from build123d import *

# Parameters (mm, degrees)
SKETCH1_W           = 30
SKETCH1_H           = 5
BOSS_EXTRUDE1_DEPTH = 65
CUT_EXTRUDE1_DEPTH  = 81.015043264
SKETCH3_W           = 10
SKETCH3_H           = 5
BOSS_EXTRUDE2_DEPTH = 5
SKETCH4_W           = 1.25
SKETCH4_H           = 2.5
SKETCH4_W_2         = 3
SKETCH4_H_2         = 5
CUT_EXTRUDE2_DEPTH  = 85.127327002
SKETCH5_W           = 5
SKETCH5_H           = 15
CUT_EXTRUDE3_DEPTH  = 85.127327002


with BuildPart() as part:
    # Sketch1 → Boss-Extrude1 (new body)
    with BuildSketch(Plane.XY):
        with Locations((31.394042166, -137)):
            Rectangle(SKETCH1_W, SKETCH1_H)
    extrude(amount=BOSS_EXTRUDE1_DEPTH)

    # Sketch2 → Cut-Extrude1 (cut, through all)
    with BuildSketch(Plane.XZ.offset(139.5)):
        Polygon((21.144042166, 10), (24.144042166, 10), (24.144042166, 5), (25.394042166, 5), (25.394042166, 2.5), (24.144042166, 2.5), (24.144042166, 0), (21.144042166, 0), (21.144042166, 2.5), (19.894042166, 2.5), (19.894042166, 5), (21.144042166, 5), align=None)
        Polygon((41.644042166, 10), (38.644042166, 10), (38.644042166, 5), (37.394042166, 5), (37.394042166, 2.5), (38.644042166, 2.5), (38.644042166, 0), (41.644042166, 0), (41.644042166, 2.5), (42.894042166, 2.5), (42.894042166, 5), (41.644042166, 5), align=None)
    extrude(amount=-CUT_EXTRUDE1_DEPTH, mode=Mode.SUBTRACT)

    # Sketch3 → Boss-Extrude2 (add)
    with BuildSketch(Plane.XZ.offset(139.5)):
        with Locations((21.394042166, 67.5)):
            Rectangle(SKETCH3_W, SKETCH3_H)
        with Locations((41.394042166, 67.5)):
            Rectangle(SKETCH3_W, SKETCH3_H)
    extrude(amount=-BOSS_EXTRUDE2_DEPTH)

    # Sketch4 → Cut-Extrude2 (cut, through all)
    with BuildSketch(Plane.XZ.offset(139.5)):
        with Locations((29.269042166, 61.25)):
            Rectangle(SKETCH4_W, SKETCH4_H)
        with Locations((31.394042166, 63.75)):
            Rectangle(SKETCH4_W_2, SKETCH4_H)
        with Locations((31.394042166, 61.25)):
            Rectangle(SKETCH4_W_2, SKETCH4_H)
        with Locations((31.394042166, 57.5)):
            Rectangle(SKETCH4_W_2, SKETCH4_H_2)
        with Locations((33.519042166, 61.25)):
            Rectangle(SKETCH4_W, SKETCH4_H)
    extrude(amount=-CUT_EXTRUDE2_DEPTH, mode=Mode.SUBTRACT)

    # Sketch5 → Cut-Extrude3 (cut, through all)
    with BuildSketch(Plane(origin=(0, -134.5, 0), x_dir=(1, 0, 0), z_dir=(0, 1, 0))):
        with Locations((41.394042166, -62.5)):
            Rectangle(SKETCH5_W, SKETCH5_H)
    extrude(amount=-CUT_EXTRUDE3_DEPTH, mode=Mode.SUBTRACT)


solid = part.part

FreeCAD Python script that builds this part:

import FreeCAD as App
import Part
import Sketcher
Q = App.Units.Quantity

doc = App.newDocument("Part")
body = doc.addObject("PartDesign::Body", "Body")

# Sketch on XY plane
sketch1 = body.newObject("Sketcher::SketchObject", "Sketch")
sketch1.AttachmentSupport = (doc.getObject("XY_Plane"), [""])
sketch1.MapMode = "FlatFace"
sketch1.addGeometry([
    Part.LineSegment(App.Vector(16, -134, 0), App.Vector(16, -140, 0)),
    Part.LineSegment(App.Vector(16, -140, 0), App.Vector(46, -140, 0)),
    Part.LineSegment(App.Vector(46, -140, 0), App.Vector(46, -134, 0)),
    Part.LineSegment(App.Vector(46, -134, 0), App.Vector(16, -134, 0)),
], False)
sketch1.addConstraint([
    Sketcher.Constraint("Coincident", 0, 2, 1, 1),
    Sketcher.Constraint("Coincident", 1, 2, 2, 1),
    Sketcher.Constraint("Coincident", 2, 2, 3, 1),
    Sketcher.Constraint("Coincident", 3, 2, 0, 1),
    Sketcher.Constraint("Vertical", 0),
    Sketcher.Constraint("Horizontal", 1),
    Sketcher.Constraint("Vertical", 2),
    Sketcher.Constraint("Horizontal", 3),
    Sketcher.Constraint("DistanceX", 1, 1, 1, 2, Q("30 mm")),
    Sketcher.Constraint("DistanceY", 0, 2, 0, 1, Q("5 mm")),
    Sketcher.Constraint("DistanceY", 0, 2, -1, 1, Q("139.5 mm")),
    Sketcher.Constraint("DistanceX", -1, 1, 0, 2, Q("16.394042 mm")),
])
pad1 = body.newObject("PartDesign::Pad", "Pad")
pad1.Profile = sketch1
pad1.Length = 65

# Sketch on XZ plane
sketch2 = body.newObject("Sketcher::SketchObject", "Sketch001")
sketch2.AttachmentSupport = (doc.getObject("XZ_Plane"), [""])
sketch2.MapMode = "FlatFace"
sketch2.AttachmentOffset = App.Placement(App.Vector(0, 0, 139.5), App.Rotation())
sketch2.addGeometry([
    Part.LineSegment(App.Vector(24.1, 10, 0), App.Vector(21.1, 10, 0)),  # 0
    Part.LineSegment(App.Vector(21.1, 10, 0), App.Vector(21.1, 5, 0)),  # 1
    Part.LineSegment(App.Vector(21.1, 5, 0), App.Vector(19.9, 5, 0)),  # 2
    Part.LineSegment(App.Vector(19.9, 5, 0), App.Vector(19.9, 2.5, 0)),  # 3
    Part.LineSegment(App.Vector(19.9, 2.5, 0), App.Vector(21.1, 2.5, 0)),  # 4
    Part.LineSegment(App.Vector(21.1, 2.5, 0), App.Vector(21.1, 0, 0)),  # 5
    Part.LineSegment(App.Vector(21.1, 0, 0), App.Vector(24.1, 0, 0)),  # 6
    Part.LineSegment(App.Vector(24.1, 0, 0), App.Vector(24.1, 2.5, 0)),  # 7
    Part.LineSegment(App.Vector(24.1, 2.5, 0), App.Vector(25.4, 2.5, 0)),  # 8
    Part.LineSegment(App.Vector(25.4, 2.5, 0), App.Vector(25.4, 5, 0)),  # 9
    Part.LineSegment(App.Vector(25.4, 5, 0), App.Vector(24.1, 5, 0)),  # 10
    Part.LineSegment(App.Vector(24.1, 5, 0), App.Vector(24.1, 10, 0)),  # 11
    Part.LineSegment(App.Vector(41.6, 10, 0), App.Vector(38.6, 10, 0)),  # 12
    Part.LineSegment(App.Vector(38.6, 10, 0), App.Vector(38.6, 5, 0)),  # 13
    Part.LineSegment(App.Vector(38.6, 5, 0), App.Vector(37.4, 5, 0)),  # 14
    Part.LineSegment(App.Vector(37.4, 5, 0), App.Vector(37.4, 2.5, 0)),  # 15
    Part.LineSegment(App.Vector(37.4, 2.5, 0), App.Vector(38.6, 2.5, 0)),  # 16
    Part.LineSegment(App.Vector(38.6, 2.5, 0), App.Vector(38.6, 0, 0)),  # 17
    Part.LineSegment(App.Vector(38.6, 0, 0), App.Vector(41.6, 0, 0)),  # 18
    Part.LineSegment(App.Vector(41.6, 0, 0), App.Vector(41.6, 2.5, 0)),  # 19
    Part.LineSegment(App.Vector(41.6, 2.5, 0), App.Vector(42.9, 2.5, 0)),  # 20
    Part.LineSegment(App.Vector(42.9, 2.5, 0), App.Vector(42.9, 5, 0)),  # 21
    Part.LineSegment(App.Vector(42.9, 5, 0), App.Vector(41.6, 5, 0)),  # 22
    Part.LineSegment(App.Vector(41.6, 5, 0), App.Vector(41.6, 10, 0)),  # 23
], False)
sketch2.addConstraint([
    Sketcher.Constraint("Coincident", 0, 2, 1, 1),
    Sketcher.Constraint("Coincident", 1, 2, 2, 1),
    Sketcher.Constraint("Coincident", 2, 2, 3, 1),
    Sketcher.Constraint("Coincident", 3, 2, 4, 1),
    Sketcher.Constraint("Coincident", 4, 2, 5, 1),
    Sketcher.Constraint("Coincident", 5, 2, 6, 1),
    Sketcher.Constraint("Coincident", 6, 2, 7, 1),
    Sketcher.Constraint("Coincident", 7, 2, 8, 1),
    Sketcher.Constraint("Coincident", 8, 2, 9, 1),
    Sketcher.Constraint("Coincident", 9, 2, 10, 1),
    Sketcher.Constraint("Coincident", 10, 2, 11, 1),
    Sketcher.Constraint("Coincident", 11, 2, 0, 1),
    Sketcher.Constraint("Coincident", 12, 2, 13, 1),
    Sketcher.Constraint("Coincident", 13, 2, 14, 1),
    Sketcher.Constraint("Coincident", 14, 2, 15, 1),
    Sketcher.Constraint("Coincident", 15, 2, 16, 1),
    Sketcher.Constraint("Coincident", 16, 2, 17, 1),
    Sketcher.Constraint("Coincident", 17, 2, 18, 1),
    Sketcher.Constraint("Coincident", 18, 2, 19, 1),
    Sketcher.Constraint("Coincident", 19, 2, 20, 1),
    Sketcher.Constraint("Coincident", 20, 2, 21, 1),
    Sketcher.Constraint("Coincident", 21, 2, 22, 1),
    Sketcher.Constraint("Coincident", 22, 2, 23, 1),
    Sketcher.Constraint("Coincident", 23, 2, 12, 1),
    Sketcher.Constraint("Horizontal", 0),
    Sketcher.Constraint("Vertical", 1),
    Sketcher.Constraint("Horizontal", 2),
    Sketcher.Constraint("Vertical", 3),
    Sketcher.Constraint("Horizontal", 4),
    Sketcher.Constraint("Vertical", 5),
    Sketcher.Constraint("Horizontal", 6),
    Sketcher.Constraint("Vertical", 7),
    Sketcher.Constraint("Horizontal", 8),
    Sketcher.Constraint("Vertical", 9),
    Sketcher.Constraint("Horizontal", 10),
    Sketcher.Constraint("Vertical", 11),
    Sketcher.Constraint("Horizontal", 12),
    Sketcher.Constraint("Vertical", 13),
    Sketcher.Constraint("Horizontal", 14),
    Sketcher.Constraint("Vertical", 15),
    Sketcher.Constraint("Horizontal", 16),
    Sketcher.Constraint("Vertical", 17),
    Sketcher.Constraint("Horizontal", 18),
    Sketcher.Constraint("Vertical", 19),
    Sketcher.Constraint("Horizontal", 20),
    Sketcher.Constraint("Vertical", 21),
    Sketcher.Constraint("Horizontal", 22),
    Sketcher.Constraint("Vertical", 23),
    Sketcher.Constraint("PointOnObject", 5, 2, -1),
    Sketcher.Constraint("PointOnObject", 17, 2, -1),
    Sketcher.Constraint("Horizontal", 4, 2, 7, 2),
    Sketcher.Constraint("Horizontal", 2, 2, 9, 2),
    Sketcher.Constraint("Horizontal", 11, 2, 12, 2),
    Sketcher.Constraint("Horizontal", 10, 2, 13, 2),
    Sketcher.Constraint("Horizontal", 8, 2, 15, 2),
    Sketcher.Constraint("Horizontal", 16, 2, 19, 2),
    Sketcher.Constraint("Horizontal", 14, 2, 21, 2),
    Sketcher.Constraint("Vertical", 1, 2, 4, 2),
    Sketcher.Constraint("Vertical", 7, 2, 10, 2),
    Sketcher.Constraint("Vertical", 13, 2, 16, 2),
    Sketcher.Constraint("Vertical", 19, 2, 22, 2),
    Sketcher.Constraint("Equal", 4, 8),
    Sketcher.Constraint("Equal", 6, 12),
    Sketcher.Constraint("Equal", 10, 14),
    Sketcher.Constraint("Equal", 16, 20),
    Sketcher.Constraint("Equal", 3, 5),
    Sketcher.Constraint("DistanceX", 0, 2, 0, 1, Q("3 mm")),
    Sketcher.Constraint("DistanceY", 1, 2, 1, 1, Q("5 mm")),
    Sketcher.Constraint("DistanceY", 3, 2, 3, 1, Q("2.5 mm")),
    Sketcher.Constraint("DistanceX", 9, 2, 14, 2, Q("12 mm")),
    Sketcher.Constraint("DistanceX", 2, 2, 2, 1, Q("1.25 mm")),
    Sketcher.Constraint("DistanceX", -1, 1, 0, 2, Q("21.144042 mm")),
])
pocket1 = body.newObject("PartDesign::Pocket", "Pocket")
pocket1.Profile = sketch2
pocket1.Type = "ThroughAll"

# Sketch on XZ plane
sketch3 = body.newObject("Sketcher::SketchObject", "Sketch002")
sketch3.AttachmentSupport = (doc.getObject("XZ_Plane"), [""])
sketch3.MapMode = "FlatFace"
sketch3.AttachmentOffset = App.Placement(App.Vector(0, 0, 139.5), App.Rotation())
sketch3.addGeometry([
    Part.LineSegment(App.Vector(16, 70, 0), App.Vector(16, 65, 0)),  # 0
    Part.LineSegment(App.Vector(16, 65, 0), App.Vector(26, 65, 0)),  # 1
    Part.LineSegment(App.Vector(26, 65, 0), App.Vector(26, 70, 0)),  # 2
    Part.LineSegment(App.Vector(26, 70, 0), App.Vector(16, 70, 0)),  # 3
    Part.LineSegment(App.Vector(36, 70, 0), App.Vector(36, 65, 0)),  # 4
    Part.LineSegment(App.Vector(36, 65, 0), App.Vector(46, 65, 0)),  # 5
    Part.LineSegment(App.Vector(46, 65, 0), App.Vector(46, 70, 0)),  # 6
    Part.LineSegment(App.Vector(46, 70, 0), App.Vector(36, 70, 0)),  # 7
], False)
sketch3.addConstraint([
    Sketcher.Constraint("Coincident", 0, 2, 1, 1),
    Sketcher.Constraint("Coincident", 1, 2, 2, 1),
    Sketcher.Constraint("Coincident", 2, 2, 3, 1),
    Sketcher.Constraint("Coincident", 3, 2, 0, 1),
    Sketcher.Constraint("Coincident", 4, 2, 5, 1),
    Sketcher.Constraint("Coincident", 5, 2, 6, 1),
    Sketcher.Constraint("Coincident", 6, 2, 7, 1),
    Sketcher.Constraint("Coincident", 7, 2, 4, 1),
    Sketcher.Constraint("Vertical", 0),
    Sketcher.Constraint("Horizontal", 1),
    Sketcher.Constraint("Vertical", 2),
    Sketcher.Constraint("Horizontal", 3),
    Sketcher.Constraint("Vertical", 4),
    Sketcher.Constraint("Horizontal", 5),
    Sketcher.Constraint("Vertical", 6),
    Sketcher.Constraint("Horizontal", 7),
    Sketcher.Constraint("Horizontal", 1, 2, 4, 2),
    Sketcher.Constraint("Horizontal", 3, 2, 6, 2),
    Sketcher.Constraint("Equal", 3, 5),
    Sketcher.Constraint("DistanceX", 1, 1, 1, 2, Q("10 mm")),
    Sketcher.Constraint("DistanceY", 0, 2, 0, 1, Q("5 mm")),
    Sketcher.Constraint("DistanceY", -1, 1, 0, 2, Q("65 mm")),
    Sketcher.Constraint("DistanceX", 1, 2, 4, 2, Q("10 mm")),
    Sketcher.Constraint("DistanceX", -1, 1, 0, 2, Q("16.394042 mm")),
])
pad2 = body.newObject("PartDesign::Pad", "Pad001")
pad2.Profile = sketch3
pad2.Length = 5
pad2.Reversed = True

# Sketch on XZ plane
sketch4 = body.newObject("Sketcher::SketchObject", "Sketch003")
sketch4.AttachmentSupport = (doc.getObject("XZ_Plane"), [""])
sketch4.MapMode = "FlatFace"
sketch4.AttachmentOffset = App.Placement(App.Vector(0, 0, 139.5), App.Rotation())
sketch4.addGeometry([
    Part.LineSegment(App.Vector(28.6, 62.5, 0), App.Vector(28.6, 60, 0)),  # 0
    Part.LineSegment(App.Vector(28.6, 60, 0), App.Vector(29.9, 60, 0)),  # 1
    Part.LineSegment(App.Vector(29.9, 60, 0), App.Vector(29.9, 55, 0)),  # 2
    Part.LineSegment(App.Vector(29.9, 55, 0), App.Vector(32.9, 55, 0)),  # 3
    Part.LineSegment(App.Vector(32.9, 55, 0), App.Vector(32.9, 60, 0)),  # 4
    Part.LineSegment(App.Vector(32.9, 60, 0), App.Vector(34.1, 60, 0)),  # 5
    Part.LineSegment(App.Vector(34.1, 60, 0), App.Vector(34.1, 62.5, 0)),  # 6
    Part.LineSegment(App.Vector(34.1, 62.5, 0), App.Vector(32.9, 62.5, 0)),  # 7
    Part.LineSegment(App.Vector(32.9, 62.5, 0), App.Vector(32.9, 65, 0)),  # 8
    Part.LineSegment(App.Vector(32.9, 65, 0), App.Vector(29.9, 65, 0)),  # 9
    Part.LineSegment(App.Vector(29.9, 65, 0), App.Vector(29.9, 62.5, 0)),  # 10
    Part.LineSegment(App.Vector(29.9, 62.5, 0), App.Vector(28.6, 62.5, 0)),  # 11
], False)
sketch4.addConstraint([
    Sketcher.Constraint("Coincident", 0, 2, 1, 1),
    Sketcher.Constraint("Coincident", 1, 2, 2, 1),
    Sketcher.Constraint("Coincident", 2, 2, 3, 1),
    Sketcher.Constraint("Coincident", 3, 2, 4, 1),
    Sketcher.Constraint("Coincident", 4, 2, 5, 1),
    Sketcher.Constraint("Coincident", 5, 2, 6, 1),
    Sketcher.Constraint("Coincident", 6, 2, 7, 1),
    Sketcher.Constraint("Coincident", 7, 2, 8, 1),
    Sketcher.Constraint("Coincident", 8, 2, 9, 1),
    Sketcher.Constraint("Coincident", 9, 2, 10, 1),
    Sketcher.Constraint("Coincident", 10, 2, 11, 1),
    Sketcher.Constraint("Coincident", 11, 2, 0, 1),
    Sketcher.Constraint("Vertical", 0),
    Sketcher.Constraint("Horizontal", 1),
    Sketcher.Constraint("Vertical", 2),
    Sketcher.Constraint("Horizontal", 3),
    Sketcher.Constraint("Vertical", 4),
    Sketcher.Constraint("Horizontal", 5),
    Sketcher.Constraint("Vertical", 6),
    Sketcher.Constraint("Horizontal", 7),
    Sketcher.Constraint("Vertical", 8),
    Sketcher.Constraint("Horizontal", 9),
    Sketcher.Constraint("Vertical", 10),
    Sketcher.Constraint("Horizontal", 11),
    Sketcher.Constraint("Horizontal", 1, 2, 4, 2),
    Sketcher.Constraint("Horizontal", 7, 2, 10, 2),
    Sketcher.Constraint("Vertical", 4, 2, 7, 2),
    Sketcher.Constraint("Vertical", 2, 2, 9, 2),
    Sketcher.Constraint("Equal", 1, 5),
    Sketcher.Constraint("Equal", 6, 8),
    Sketcher.Constraint("DistanceX", 3, 1, 3, 2, Q("3 mm")),
    Sketcher.Constraint("DistanceY", 2, 2, 2, 1, Q("5 mm")),
    Sketcher.Constraint("DistanceY", 0, 2, 0, 1, Q("2.5 mm")),
    Sketcher.Constraint("DistanceY", -1, 1, 0, 2, Q("60 mm")),
    Sketcher.Constraint("DistanceX", 1, 1, 1, 2, Q("1.25 mm")),
    Sketcher.Constraint("DistanceX", -1, 1, 0, 2, Q("28.644042 mm")),
])
pocket2 = body.newObject("PartDesign::Pocket", "Pocket001")
pocket2.Profile = sketch4
pocket2.Type = "ThroughAll"

# Sketch on XZ plane
sketch5 = body.newObject("Sketcher::SketchObject", "Sketch004")
sketch5.AttachmentSupport = (doc.getObject("XZ_Plane"), [""])
sketch5.MapMode = "FlatFace"
sketch5.AttachmentOffset = App.Placement(App.Vector(0, 0, 134.5), App.Rotation())
sketch5.addGeometry([
    Part.LineSegment(App.Vector(39, 55, 0), App.Vector(39, 70, 0)),
    Part.LineSegment(App.Vector(39, 70, 0), App.Vector(44, 70, 0)),
    Part.LineSegment(App.Vector(44, 70, 0), App.Vector(44, 55, 0)),
    Part.LineSegment(App.Vector(44, 55, 0), App.Vector(39, 55, 0)),
], False)
sketch5.addConstraint([
    Sketcher.Constraint("Coincident", 0, 2, 1, 1),
    Sketcher.Constraint("Coincident", 1, 2, 2, 1),
    Sketcher.Constraint("Coincident", 2, 2, 3, 1),
    Sketcher.Constraint("Coincident", 3, 2, 0, 1),
    Sketcher.Constraint("Vertical", 0),
    Sketcher.Constraint("Horizontal", 1),
    Sketcher.Constraint("Vertical", 2),
    Sketcher.Constraint("Horizontal", 3),
    Sketcher.Constraint("DistanceX", 1, 1, 1, 2, Q("5 mm")),
    Sketcher.Constraint("DistanceY", 0, 1, 0, 2, Q("15 mm")),
    Sketcher.Constraint("DistanceY", -1, 1, 0, 2, Q("70 mm")),
    Sketcher.Constraint("DistanceX", -1, 1, 0, 2, Q("38.894042 mm")),
])
pocket3 = body.newObject("PartDesign::Pocket", "Pocket002")
pocket3.Profile = sketch5
pocket3.Type = "ThroughAll"
pocket3.Reversed = True

doc.recompute()
